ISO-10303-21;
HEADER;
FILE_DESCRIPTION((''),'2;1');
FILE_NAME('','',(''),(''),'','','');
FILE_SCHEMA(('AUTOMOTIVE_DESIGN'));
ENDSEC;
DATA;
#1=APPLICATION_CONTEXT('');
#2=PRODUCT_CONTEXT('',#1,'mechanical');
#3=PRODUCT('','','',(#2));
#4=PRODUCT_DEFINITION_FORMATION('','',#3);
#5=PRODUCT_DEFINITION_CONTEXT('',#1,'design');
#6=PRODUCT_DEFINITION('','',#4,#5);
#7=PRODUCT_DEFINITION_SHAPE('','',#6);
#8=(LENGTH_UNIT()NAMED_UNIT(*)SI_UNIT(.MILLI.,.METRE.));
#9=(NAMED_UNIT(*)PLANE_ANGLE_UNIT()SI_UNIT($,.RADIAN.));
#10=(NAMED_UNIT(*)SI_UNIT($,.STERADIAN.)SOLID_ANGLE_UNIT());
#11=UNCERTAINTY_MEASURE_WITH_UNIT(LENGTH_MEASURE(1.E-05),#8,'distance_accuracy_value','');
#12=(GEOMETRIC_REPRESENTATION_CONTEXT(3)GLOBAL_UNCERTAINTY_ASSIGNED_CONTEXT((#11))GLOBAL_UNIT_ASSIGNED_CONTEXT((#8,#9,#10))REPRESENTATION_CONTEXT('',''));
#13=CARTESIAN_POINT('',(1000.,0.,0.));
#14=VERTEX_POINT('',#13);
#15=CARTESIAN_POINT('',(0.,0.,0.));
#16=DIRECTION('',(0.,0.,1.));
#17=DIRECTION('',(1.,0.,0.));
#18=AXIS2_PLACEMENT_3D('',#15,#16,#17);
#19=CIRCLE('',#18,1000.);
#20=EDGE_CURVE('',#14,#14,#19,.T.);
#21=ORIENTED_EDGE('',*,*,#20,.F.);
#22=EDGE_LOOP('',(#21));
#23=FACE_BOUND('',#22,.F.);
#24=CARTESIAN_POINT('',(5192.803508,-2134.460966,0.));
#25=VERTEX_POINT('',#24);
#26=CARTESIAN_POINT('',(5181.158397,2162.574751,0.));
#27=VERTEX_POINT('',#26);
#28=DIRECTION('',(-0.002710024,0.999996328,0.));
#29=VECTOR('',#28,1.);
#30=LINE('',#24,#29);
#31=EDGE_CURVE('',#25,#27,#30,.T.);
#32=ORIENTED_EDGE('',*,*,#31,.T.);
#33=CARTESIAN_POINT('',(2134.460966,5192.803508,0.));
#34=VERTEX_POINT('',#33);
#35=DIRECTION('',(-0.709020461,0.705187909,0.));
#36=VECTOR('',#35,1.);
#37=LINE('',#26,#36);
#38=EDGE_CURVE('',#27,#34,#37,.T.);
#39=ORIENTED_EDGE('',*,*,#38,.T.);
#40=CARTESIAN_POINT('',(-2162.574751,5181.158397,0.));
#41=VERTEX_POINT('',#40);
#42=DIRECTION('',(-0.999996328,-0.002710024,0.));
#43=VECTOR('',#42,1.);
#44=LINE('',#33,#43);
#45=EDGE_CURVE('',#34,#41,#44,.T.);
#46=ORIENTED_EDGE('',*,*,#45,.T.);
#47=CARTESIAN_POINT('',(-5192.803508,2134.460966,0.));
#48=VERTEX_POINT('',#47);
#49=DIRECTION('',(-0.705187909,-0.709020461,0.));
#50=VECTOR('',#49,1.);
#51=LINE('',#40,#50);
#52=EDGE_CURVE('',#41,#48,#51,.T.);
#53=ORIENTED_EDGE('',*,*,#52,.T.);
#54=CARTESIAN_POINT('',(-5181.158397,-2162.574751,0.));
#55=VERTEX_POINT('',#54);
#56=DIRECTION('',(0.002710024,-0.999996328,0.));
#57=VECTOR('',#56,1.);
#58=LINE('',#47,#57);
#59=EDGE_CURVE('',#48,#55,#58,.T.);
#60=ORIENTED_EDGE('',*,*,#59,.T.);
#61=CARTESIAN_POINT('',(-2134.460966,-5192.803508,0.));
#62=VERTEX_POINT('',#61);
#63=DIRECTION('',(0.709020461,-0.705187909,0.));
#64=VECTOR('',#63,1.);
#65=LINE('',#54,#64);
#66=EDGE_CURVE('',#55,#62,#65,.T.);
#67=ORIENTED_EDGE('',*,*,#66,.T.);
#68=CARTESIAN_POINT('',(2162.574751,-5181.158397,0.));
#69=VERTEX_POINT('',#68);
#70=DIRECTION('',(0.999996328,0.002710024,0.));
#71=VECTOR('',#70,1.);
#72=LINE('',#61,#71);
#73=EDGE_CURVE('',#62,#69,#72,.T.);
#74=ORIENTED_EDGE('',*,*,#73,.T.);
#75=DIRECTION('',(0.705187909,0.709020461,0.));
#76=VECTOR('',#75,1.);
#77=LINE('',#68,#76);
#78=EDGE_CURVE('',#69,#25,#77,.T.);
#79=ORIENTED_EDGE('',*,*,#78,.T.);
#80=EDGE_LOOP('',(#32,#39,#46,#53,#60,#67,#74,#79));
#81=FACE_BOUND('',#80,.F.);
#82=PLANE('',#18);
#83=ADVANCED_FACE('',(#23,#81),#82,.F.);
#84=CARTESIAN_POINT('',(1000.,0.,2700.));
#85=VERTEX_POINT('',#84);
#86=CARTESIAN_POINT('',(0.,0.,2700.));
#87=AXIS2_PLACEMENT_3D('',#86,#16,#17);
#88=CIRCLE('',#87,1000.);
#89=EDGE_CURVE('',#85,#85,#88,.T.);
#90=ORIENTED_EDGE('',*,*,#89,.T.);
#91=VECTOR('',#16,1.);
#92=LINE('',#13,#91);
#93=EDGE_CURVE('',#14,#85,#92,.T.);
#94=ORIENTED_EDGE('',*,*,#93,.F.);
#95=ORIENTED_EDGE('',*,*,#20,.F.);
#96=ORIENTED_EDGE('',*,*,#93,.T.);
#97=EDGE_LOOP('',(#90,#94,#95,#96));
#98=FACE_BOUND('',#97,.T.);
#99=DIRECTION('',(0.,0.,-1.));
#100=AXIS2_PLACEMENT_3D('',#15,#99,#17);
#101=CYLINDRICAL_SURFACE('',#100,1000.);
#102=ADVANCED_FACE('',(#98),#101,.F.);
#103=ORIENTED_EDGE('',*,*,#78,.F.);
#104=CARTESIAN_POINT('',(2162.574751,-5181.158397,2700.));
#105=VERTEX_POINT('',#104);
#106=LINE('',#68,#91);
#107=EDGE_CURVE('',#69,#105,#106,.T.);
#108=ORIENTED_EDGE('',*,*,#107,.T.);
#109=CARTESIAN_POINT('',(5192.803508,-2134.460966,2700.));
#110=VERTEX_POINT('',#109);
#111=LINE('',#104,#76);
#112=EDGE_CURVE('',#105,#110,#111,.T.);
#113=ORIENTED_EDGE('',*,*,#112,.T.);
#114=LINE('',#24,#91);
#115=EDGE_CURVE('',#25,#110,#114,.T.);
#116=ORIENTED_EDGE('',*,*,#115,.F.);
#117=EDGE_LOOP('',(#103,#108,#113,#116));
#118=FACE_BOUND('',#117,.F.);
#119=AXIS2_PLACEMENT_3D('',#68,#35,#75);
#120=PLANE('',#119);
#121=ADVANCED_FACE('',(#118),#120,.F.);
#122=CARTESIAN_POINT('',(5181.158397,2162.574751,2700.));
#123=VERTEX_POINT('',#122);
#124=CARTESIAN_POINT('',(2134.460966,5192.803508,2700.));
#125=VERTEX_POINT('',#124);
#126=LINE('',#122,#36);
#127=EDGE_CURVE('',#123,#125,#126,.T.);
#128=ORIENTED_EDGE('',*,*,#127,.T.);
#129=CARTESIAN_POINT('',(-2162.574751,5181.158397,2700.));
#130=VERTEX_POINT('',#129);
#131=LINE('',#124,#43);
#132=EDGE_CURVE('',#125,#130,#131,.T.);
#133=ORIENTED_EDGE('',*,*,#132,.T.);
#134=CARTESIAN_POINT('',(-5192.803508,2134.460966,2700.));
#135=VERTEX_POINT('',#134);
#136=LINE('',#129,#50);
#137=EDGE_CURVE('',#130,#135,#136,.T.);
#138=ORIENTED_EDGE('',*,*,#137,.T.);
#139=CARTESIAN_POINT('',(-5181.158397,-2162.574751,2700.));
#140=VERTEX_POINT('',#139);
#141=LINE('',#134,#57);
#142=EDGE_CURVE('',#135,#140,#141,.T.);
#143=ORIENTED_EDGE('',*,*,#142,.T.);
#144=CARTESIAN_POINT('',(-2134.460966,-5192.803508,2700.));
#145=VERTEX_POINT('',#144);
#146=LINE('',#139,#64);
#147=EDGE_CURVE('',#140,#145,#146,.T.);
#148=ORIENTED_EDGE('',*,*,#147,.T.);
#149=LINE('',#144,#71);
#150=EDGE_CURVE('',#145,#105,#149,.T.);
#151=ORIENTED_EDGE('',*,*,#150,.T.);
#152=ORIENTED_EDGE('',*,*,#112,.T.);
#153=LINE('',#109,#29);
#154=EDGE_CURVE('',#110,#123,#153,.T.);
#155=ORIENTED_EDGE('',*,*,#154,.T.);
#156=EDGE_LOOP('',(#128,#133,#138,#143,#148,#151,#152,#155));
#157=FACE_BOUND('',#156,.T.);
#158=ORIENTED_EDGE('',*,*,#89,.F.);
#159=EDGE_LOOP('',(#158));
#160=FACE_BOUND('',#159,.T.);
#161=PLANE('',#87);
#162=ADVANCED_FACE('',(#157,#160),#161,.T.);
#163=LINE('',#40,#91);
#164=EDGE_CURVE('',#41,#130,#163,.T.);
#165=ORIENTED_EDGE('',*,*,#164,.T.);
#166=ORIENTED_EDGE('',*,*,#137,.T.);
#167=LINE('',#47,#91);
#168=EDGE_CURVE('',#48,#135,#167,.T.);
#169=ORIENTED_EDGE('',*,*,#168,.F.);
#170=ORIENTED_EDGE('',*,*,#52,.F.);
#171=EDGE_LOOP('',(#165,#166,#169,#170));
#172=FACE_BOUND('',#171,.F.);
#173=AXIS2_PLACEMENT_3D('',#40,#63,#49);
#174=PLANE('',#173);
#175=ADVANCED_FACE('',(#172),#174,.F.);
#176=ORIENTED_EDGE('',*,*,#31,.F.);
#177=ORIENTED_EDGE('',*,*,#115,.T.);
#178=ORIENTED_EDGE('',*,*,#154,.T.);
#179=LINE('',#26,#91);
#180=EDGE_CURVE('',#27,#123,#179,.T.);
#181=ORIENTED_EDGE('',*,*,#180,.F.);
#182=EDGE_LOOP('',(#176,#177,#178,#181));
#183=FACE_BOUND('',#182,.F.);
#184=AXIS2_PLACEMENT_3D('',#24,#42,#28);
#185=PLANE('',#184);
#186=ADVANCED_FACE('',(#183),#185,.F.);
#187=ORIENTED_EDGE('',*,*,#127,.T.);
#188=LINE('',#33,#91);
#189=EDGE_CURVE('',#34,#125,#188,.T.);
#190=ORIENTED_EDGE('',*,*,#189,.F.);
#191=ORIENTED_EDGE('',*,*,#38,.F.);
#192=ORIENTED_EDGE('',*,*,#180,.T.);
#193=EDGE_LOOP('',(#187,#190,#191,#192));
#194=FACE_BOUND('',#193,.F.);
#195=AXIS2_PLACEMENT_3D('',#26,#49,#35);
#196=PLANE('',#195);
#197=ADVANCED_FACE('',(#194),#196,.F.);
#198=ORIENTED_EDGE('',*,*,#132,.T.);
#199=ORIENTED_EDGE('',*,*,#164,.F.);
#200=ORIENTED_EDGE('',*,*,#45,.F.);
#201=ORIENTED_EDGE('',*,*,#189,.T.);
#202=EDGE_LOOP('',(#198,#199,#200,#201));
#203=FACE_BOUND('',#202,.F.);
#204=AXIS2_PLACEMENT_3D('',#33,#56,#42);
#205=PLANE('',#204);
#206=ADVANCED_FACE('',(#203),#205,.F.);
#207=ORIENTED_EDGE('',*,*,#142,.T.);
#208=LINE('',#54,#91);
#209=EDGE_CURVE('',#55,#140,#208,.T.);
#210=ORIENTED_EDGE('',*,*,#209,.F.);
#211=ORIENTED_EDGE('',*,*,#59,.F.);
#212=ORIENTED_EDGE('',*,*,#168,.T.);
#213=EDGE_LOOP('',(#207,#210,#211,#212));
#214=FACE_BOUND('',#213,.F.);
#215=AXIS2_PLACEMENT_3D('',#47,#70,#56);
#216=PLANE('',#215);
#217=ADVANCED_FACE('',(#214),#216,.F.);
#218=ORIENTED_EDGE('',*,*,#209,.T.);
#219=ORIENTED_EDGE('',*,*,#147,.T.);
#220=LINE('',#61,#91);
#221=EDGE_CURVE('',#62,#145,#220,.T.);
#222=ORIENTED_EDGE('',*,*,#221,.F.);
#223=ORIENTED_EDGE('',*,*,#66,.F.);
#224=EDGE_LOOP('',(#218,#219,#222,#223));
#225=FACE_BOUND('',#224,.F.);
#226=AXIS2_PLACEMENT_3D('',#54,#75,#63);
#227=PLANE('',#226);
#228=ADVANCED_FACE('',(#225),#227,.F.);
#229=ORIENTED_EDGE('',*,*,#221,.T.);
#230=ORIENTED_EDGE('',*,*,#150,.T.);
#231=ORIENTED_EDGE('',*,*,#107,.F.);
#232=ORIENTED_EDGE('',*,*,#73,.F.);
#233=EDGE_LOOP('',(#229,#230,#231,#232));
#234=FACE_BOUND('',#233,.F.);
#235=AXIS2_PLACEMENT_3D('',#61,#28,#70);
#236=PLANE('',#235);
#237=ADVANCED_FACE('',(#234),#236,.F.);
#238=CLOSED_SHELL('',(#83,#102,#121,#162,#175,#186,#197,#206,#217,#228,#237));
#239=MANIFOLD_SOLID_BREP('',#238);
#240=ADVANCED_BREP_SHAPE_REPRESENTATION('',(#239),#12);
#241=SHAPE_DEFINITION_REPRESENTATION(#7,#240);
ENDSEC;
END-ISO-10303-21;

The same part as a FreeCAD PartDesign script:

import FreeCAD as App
import Part
import Sketcher
Q = App.Units.Quantity

doc = App.newDocument("Part")
body = doc.addObject("PartDesign::Body", "Body")

sketch1 = body.newObject("Sketcher::SketchObject", "Sketch")
sketch1.AttachmentSupport = (doc.getObject("XY_Plane"), [""])
sketch1.MapMode = "FlatFace"
sketch1.addGeometry([
    Part.LineSegment(App.Vector(-5181.158397, -2162.574751, 0), App.Vector(-2134.460966, -5192.803508, 0)),
    Part.LineSegment(App.Vector(-2134.460966, -5192.803508, 0), App.Vector(2162.574751, -5181.158397, 0)),
    Part.LineSegment(App.Vector(2162.574751, -5181.158397, 0), App.Vector(5192.803508, -2134.460966, 0)),
    Part.LineSegment(App.Vector(5192.803508, -2134.460966, 0), App.Vector(5181.158397, 2162.574751, 0)),
    Part.LineSegment(App.Vector(5181.158397, 2162.574751, 0), App.Vector(2134.460966, 5192.803508, 0)),
    Part.LineSegment(App.Vector(2134.460966, 5192.803508, 0), App.Vector(-2162.574751, 5181.158397, 0)),
    Part.LineSegment(App.Vector(-2162.574751, 5181.158397, 0), App.Vector(-5192.803508, 2134.460966, 0)),
    Part.LineSegment(App.Vector(-5192.803508, 2134.460966, 0), App.Vector(-5181.158397, -2162.574751, 0)),
    Part.Circle(App.Vector(0, 0, 0), App.Vector(0, 0, 1), 1000),
], False)
sketch1.addConstraint([
    Sketcher.Constraint("Coincident", 0, 2, 1, 1),
    Sketcher.Constraint("Coincident", 1, 2, 2, 1),
    Sketcher.Constraint("Coincident", 2, 2, 3, 1),
    Sketcher.Constraint("Coincident", 3, 2, 4, 1),
    Sketcher.Constraint("Coincident", 4, 2, 5, 1),
    Sketcher.Constraint("Coincident", 5, 2, 6, 1),
    Sketcher.Constraint("Coincident", 6, 2, 7, 1),
    Sketcher.Constraint("Coincident", 7, 2, 0, 1),
    Sketcher.Constraint("Coincident", 8, 3, -1, 1),
    Sketcher.Constraint("Symmetric", 0, 2, 4, 2, -1, 1),
    Sketcher.Constraint("Symmetric", 1, 2, 5, 2, -1, 1),
    Sketcher.Constraint("Symmetric", 2, 2, 6, 2, -1, 1),
    Sketcher.Constraint("Symmetric", 3, 2, 7, 2, -1, 1),
    Sketcher.Constraint("Perpendicular", 0, 2),
    Sketcher.Constraint("Perpendicular", 1, 3),
    Sketcher.Constraint("Equal", 0, 1),
    Sketcher.Constraint("Equal", 1, 2),
    Sketcher.Constraint("Equal", 2, 3),
    Sketcher.Constraint("Diameter", 8, Q("2000 mm")),
    Sketcher.Constraint("DistanceY", 0, 2, -1, 1, Q("5192.803508 mm")),
    Sketcher.Constraint("DistanceX", -1, 1, 1, 2, Q("2162.574751 mm")),
    Sketcher.Constraint("DistanceY", 0, 2, 1, 2, Q("11.645111 mm")),
])
pad1 = body.newObject("PartDesign::Pad", "Pad")
pad1.Profile = sketch1
pad1.Length = 2700

doc.recompute()
